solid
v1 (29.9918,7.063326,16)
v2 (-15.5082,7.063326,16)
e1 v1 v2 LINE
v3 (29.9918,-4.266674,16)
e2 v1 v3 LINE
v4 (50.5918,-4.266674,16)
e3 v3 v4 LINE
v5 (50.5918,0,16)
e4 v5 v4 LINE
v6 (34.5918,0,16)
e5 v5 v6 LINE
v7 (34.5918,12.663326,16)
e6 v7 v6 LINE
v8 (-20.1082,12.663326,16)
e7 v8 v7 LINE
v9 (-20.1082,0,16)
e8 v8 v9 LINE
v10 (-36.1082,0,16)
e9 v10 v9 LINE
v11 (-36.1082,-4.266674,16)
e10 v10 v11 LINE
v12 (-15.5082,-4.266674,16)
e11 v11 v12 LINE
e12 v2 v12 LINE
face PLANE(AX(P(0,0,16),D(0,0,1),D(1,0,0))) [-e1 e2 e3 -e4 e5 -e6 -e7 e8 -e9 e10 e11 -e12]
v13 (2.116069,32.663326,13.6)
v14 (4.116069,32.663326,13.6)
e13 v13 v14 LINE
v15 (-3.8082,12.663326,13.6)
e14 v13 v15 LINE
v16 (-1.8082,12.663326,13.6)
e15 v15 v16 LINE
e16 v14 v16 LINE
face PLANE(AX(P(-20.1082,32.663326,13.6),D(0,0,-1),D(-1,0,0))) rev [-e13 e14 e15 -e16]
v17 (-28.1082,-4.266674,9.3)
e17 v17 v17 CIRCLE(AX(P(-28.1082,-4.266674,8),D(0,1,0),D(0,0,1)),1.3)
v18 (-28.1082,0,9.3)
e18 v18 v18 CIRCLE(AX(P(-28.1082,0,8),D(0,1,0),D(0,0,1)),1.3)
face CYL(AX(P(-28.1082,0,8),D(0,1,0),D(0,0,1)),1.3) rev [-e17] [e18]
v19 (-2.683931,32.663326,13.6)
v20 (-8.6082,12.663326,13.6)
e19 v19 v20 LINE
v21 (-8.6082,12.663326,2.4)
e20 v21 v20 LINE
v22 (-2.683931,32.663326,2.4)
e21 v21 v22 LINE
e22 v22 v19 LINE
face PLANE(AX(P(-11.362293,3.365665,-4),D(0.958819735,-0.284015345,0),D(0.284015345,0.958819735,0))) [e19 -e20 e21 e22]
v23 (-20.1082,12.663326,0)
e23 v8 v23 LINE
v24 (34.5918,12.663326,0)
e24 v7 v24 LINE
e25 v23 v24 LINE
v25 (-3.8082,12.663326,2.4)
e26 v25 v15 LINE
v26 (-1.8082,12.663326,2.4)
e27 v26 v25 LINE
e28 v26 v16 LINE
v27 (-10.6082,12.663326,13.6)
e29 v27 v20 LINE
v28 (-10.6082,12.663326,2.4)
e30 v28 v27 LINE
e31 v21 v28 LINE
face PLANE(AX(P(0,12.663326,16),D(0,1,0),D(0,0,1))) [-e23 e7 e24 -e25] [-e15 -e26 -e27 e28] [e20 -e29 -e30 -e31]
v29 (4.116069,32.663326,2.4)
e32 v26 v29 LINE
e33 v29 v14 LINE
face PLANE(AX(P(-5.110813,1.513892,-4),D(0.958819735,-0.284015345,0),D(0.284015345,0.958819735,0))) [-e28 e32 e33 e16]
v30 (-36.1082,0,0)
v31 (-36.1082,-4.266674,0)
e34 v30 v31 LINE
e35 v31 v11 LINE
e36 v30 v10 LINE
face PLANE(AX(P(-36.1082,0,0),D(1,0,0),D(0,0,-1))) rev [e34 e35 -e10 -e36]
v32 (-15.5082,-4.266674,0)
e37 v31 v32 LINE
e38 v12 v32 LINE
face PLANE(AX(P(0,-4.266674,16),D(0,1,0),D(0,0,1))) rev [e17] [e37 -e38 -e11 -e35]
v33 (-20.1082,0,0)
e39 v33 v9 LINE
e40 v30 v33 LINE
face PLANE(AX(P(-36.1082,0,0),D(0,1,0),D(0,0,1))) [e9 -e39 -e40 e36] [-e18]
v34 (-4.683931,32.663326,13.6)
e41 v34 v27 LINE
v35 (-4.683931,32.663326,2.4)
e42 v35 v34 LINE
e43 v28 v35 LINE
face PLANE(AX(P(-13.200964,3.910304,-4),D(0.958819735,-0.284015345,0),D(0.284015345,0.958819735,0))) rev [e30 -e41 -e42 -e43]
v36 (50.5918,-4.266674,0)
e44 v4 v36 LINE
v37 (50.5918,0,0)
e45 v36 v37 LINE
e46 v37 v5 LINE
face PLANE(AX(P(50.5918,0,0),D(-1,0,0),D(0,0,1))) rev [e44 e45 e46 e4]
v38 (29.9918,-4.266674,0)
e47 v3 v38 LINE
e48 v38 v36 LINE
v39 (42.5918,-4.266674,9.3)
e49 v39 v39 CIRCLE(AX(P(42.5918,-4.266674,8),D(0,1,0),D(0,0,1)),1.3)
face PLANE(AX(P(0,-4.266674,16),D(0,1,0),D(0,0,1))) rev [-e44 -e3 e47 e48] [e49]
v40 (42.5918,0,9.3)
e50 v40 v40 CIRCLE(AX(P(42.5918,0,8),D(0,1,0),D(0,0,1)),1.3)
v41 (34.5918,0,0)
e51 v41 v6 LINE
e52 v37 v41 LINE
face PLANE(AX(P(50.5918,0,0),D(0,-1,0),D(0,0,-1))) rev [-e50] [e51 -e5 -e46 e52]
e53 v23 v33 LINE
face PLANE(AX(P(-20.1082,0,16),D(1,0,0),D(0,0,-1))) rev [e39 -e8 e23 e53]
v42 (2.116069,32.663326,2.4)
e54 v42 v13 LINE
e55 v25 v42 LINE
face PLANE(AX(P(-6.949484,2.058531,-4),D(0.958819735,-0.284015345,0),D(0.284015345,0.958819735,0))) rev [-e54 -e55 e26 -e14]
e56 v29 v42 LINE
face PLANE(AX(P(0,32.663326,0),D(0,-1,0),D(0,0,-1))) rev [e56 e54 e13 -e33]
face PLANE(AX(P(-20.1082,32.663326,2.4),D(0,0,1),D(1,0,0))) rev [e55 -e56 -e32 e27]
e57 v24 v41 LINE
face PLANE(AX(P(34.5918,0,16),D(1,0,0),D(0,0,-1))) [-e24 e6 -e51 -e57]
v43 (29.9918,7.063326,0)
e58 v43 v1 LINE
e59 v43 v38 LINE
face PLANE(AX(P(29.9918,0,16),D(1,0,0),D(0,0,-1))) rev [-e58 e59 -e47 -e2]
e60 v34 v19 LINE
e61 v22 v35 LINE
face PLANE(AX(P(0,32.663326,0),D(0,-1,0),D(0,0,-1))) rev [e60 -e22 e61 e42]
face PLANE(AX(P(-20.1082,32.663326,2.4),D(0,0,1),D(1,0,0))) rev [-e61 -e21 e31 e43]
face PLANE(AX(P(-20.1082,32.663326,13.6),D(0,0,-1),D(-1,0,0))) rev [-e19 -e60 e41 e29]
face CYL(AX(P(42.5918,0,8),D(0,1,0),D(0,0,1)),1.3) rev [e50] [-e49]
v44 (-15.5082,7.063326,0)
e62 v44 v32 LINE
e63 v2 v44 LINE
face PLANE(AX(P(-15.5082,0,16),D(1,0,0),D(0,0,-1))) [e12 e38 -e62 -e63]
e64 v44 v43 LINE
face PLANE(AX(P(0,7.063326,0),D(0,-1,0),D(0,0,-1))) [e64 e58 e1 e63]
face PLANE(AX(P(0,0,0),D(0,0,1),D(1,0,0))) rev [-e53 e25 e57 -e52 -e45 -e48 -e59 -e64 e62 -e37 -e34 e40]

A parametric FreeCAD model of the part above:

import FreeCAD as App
import Part
import Sketcher
Q = App.Units.Quantity

doc = App.newDocument("Part")
body = doc.addObject("PartDesign::Body", "Body")

# Sketch on XY plane
sketch1 = body.newObject("Sketcher::SketchObject", "Sketch")
sketch1.AttachmentSupport = (doc.getObject("XY_Plane"), [""])
sketch1.MapMode = "FlatFace"
sketch1.addGeometry(Part.LineSegment(App.Vector(34.6, 12.7, 0), App.Vector(-20.1, 12.7, 0)), False)
sketch1.addGeometry(Part.LineSegment(App.Vector(-20.1, 12.7, 0), App.Vector(-20.1, -4.3, 0)), False)
sketch1.addGeometry(Part.LineSegment(App.Vector(-20.1, -4.3, 0), App.Vector(-15.5, -4.3, 0)), False)
sketch1.addGeometry(Part.LineSegment(App.Vector(-15.5, -4.3, 0), App.Vector(-15.5, 8.1, 0)), False)
sketch1.addGeometry(Part.LineSegment(App.Vector(-15.5, 8.1, 0), App.Vector(30, 8.1, 0)), False)
sketch1.addGeometry(Part.LineSegment(App.Vector(30, 8.1, 0), App.Vector(30, -4.3, 0)), False)
sketch1.addGeometry(Part.LineSegment(App.Vector(30, -4.3, 0), App.Vector(34.6, -4.3, 0)), False)
sketch1.addGeometry(Part.LineSegment(App.Vector(34.6, -4.3, 0), App.Vector(34.6, 12.7, 0)), False)
sketch1.addConstraint(Sketcher.Constraint("Coincident", 0, 2, 1, 1))
sketch1.addConstraint(Sketcher.Constraint("Coincident", 1, 2, 2, 1))
sketch1.addConstraint(Sketcher.Constraint("Coincident", 2, 2, 3, 1))
sketch1.addConstraint(Sketcher.Constraint("Coincident", 3, 2, 4, 1))
sketch1.addConstraint(Sketcher.Constraint("Coincident", 4, 2, 5, 1))
sketch1.addConstraint(Sketcher.Constraint("Coincident", 5, 2, 6, 1))
sketch1.addConstraint(Sketcher.Constraint("Coincident", 6, 2, 7, 1))
sketch1.addConstraint(Sketcher.Constraint("Coincident", 7, 2, 0, 1))
sketch1.addConstraint(Sketcher.Constraint("Horizontal", 0))
sketch1.addConstraint(Sketcher.Constraint("Vertical", 1))
sketch1.addConstraint(Sketcher.Constraint("Horizontal", 2))
sketch1.addConstraint(Sketcher.Constraint("Vertical", 3))
sketch1.addConstraint(Sketcher.Constraint("Horizontal", 4))
sketch1.addConstraint(Sketcher.Constraint("Vertical", 5))
sketch1.addConstraint(Sketcher.Constraint("Horizontal", 6))
sketch1.addConstraint(Sketcher.Constraint("Vertical", 7))
sketch1.addConstraint(Sketcher.Constraint("Horizontal", 2, 2, 5, 2))
sketch1.addConstraint(Sketcher.Constraint("Equal", 2, 6))
sketch1.addConstraint(Sketcher.Constraint("DistanceX", 0, 2, 0, 1, 54.7))
sketch1.addConstraint(Sketcher.Constraint("DistanceX", 2, 1, 2, 2, 4.6))
sketch1.addConstraint(Sketcher.Constraint("DistanceY", 1, 2, 1, 1, 16.93))
sketch1.addConstraint(Sketcher.Constraint("DistanceY", 3, 1, 3, 2, 12.33))
sketch1.addConstraint(Sketcher.Constraint("DistanceX", 0, 2, -1, 1, 20.1082))
sketch1.addConstraint(Sketcher.Constraint("DistanceY", -1, 1, 0, 2, 12.663326))
pad1 = body.newObject("PartDesign::Pad", "Pad")
pad1.Profile = sketch1
pad1.Length = 16

# Sketch on YZ plane
sketch2 = body.newObject("Sketcher::SketchObject", "Sketch001")
sketch2.AttachmentSupport = (doc.getObject("YZ_Plane"), [""])
sketch2.MapMode = "FlatFace"
sketch2.AttachmentOffset = App.Placement(App.Vector(0, 0, -20.1082), App.Rotation())
sketch2.addGeometry(Part.LineSegment(App.Vector(0, 0, 0), App.Vector(-4.3, 0, 0)), False)
sketch2.addGeometry(Part.LineSegment(App.Vector(-4.3, 0, 0), App.Vector(-4.3, 16, 0)), False)
sketch2.addGeometry(Part.LineSegment(App.Vector(-4.3, 16, 0), App.Vector(0, 16, 0)), False)
sketch2.addGeometry(Part.LineSegment(App.Vector(0, 16, 0), App.Vector(0, 0, 0)), False)
sketch2.addConstraint(Sketcher.Constraint("Coincident", 0, 2, 1, 1))
sketch2.addConstraint(Sketcher.Constraint("Coincident", 1, 2, 2, 1))
sketch2.addConstraint(Sketcher.Constraint("Coincident", 2, 2, 3, 1))
sketch2.addConstraint(Sketcher.Constraint("Coincident", 3, 2, 0, 1))
sketch2.addConstraint(Sketcher.Constraint("Horizontal", 0))
sketch2.addConstraint(Sketcher.Constraint("Vertical", 1))
sketch2.addConstraint(Sketcher.Constraint("Horizontal", 2))
sketch2.addConstraint(Sketcher.Constraint("Vertical", 3))
sketch2.addConstraint(Sketcher.Constraint("Coincident", 3, 2, -1, 1))
sketch2.addConstraint(Sketcher.Constraint("DistanceY", 1, 1, 1, 2, 16.0))
sketch2.addConstraint(Sketcher.Constraint("DistanceX", 0, 2, 0, 1, 4.266674))
pad2 = body.newObject("PartDesign::Pad", "Pad001")
pad2.Profile = sketch2
pad2.Length = 16
pad2.Reversed = True

# Sketch on YZ plane
sketch3 = body.newObject("Sketcher::SketchObject", "Sketch002")
sketch3.AttachmentSupport = (doc.getObject("YZ_Plane"), [""])
sketch3.MapMode = "FlatFace"
sketch3.AttachmentOffset = App.Placement(App.Vector(0, 0, 34.5918), App.Rotation())
sketch3.addGeometry(Part.LineSegment(App.Vector(0, 16, 0), App.Vector(-4.3, 16, 0)), False)
sketch3.addGeometry(Part.LineSegment(App.Vector(-4.3, 16, 0), App.Vector(-4.3, 0, 0)), False)
sketch3.addGeometry(Part.LineSegment(App.Vector(-4.3, 0, 0), App.Vector(0, 0, 0)), False)
sketch3.addGeometry(Part.LineSegment(App.Vector(0, 0, 0), App.Vector(0, 16, 0)), False)
sketch3.addConstraint(Sketcher.Constraint("Coincident", 0, 2, 1, 1))
sketch3.addConstraint(Sketcher.Constraint("Coincident", 1, 2, 2, 1))
sketch3.addConstraint(Sketcher.Constraint("Coincident", 2, 2, 3, 1))
sketch3.addConstraint(Sketcher.Constraint("Coincident", 3, 2, 0, 1))
sketch3.addConstraint(Sketcher.Constraint("Horizontal", 0))
sketch3.addConstraint(Sketcher.Constraint("Vertical", 1))
sketch3.addConstraint(Sketcher.Constraint("Horizontal", 2))
sketch3.addConstraint(Sketcher.Constraint("Vertical", 3))
sketch3.addConstraint(Sketcher.Constraint("Coincident", 2, 2, -1, 1))
sketch3.addConstraint(Sketcher.Constraint("DistanceY", 1, 2, 1, 1, 16.0))
sketch3.addConstraint(Sketcher.Constraint("DistanceX", 0, 2, 0, 1, 4.266674))
pad3 = body.newObject("PartDesign::Pad", "Pad002")
pad3.Profile = sketch3
pad3.Length = 16

# Sketch on XZ plane
sketch4 = body.newObject("Sketcher::SketchObject", "Sketch003")
sketch4.AttachmentSupport = (doc.getObject("XZ_Plane"), [""])
sketch4.MapMode = "FlatFace"
sketch4.addGeometry(Part.Circle(App.Vector(42.6, 8, 0), App.Vector(0, 0, 1), 1.3), False)
sketch4.addConstraint(Sketcher.Constraint("Diameter", 0, 2.6))
sketch4.addConstraint(Sketcher.Constraint("DistanceY", -1, 1, 0, 3, 8.0))
sketch4.addConstraint(Sketcher.Constraint("DistanceX", -1, 1, 0, 3, 42.5918))
doc.recompute()
hole = body.newObject("PartDesign::Hole", "Hole")
hole.Profile = sketch4
hole.ThreadType = "None"
hole.Diameter = 2.6
hole.DepthType = "ThroughAll"
hole.Reversed = True

# Sketch on XZ plane
sketch5 = body.newObject("Sketcher::SketchObject", "Sketch004")
sketch5.AttachmentSupport = (doc.getObject("XZ_Plane"), [""])
sketch5.MapMode = "FlatFace"
sketch5.addGeometry(Part.Circle(App.Vector(-28.1, 8, 0), App.Vector(0, 0, 1), 1.3), False)
sketch5.addConstraint(Sketcher.Constraint("Diameter", 0, 2.6))
sketch5.addConstraint(Sketcher.Constraint("DistanceY", -1, 1, 0, 3, 8.0))
sketch5.addConstraint(Sketcher.Constraint("DistanceX", 0, 3, -1, 1, 28.1082))
doc.recompute()
hole2 = body.newObject("PartDesign::Hole", "Hole001")
hole2.Profile = sketch5
hole2.ThreadType = "None"
hole2.Diameter = 2.6
hole2.DepthType = "ThroughAll"
hole2.Reversed = True

# Sketch on XZ plane
sketch6 = body.newObject("Sketcher::SketchObject", "Sketch005")
sketch6.AttachmentSupport = (doc.getObject("XZ_Plane"), [""])
sketch6.MapMode = "FlatFace"
sketch6.AttachmentOffset = App.Placement(App.Vector(0, 0, -8.063326), App.Rotation())
sketch6.addGeometry(Part.LineSegment(App.Vector(-16, 16, 0), App.Vector(-16, 0, 0)), False)
sketch6.addGeometry(Part.LineSegment(App.Vector(-16, 0, 0), App.Vector(30, 0, 0)), False)
sketch6.addGeometry(Part.LineSegment(App.Vector(30, 0, 0), App.Vector(30, 16, 0)), False)
sketch6.addGeometry(Part.LineSegment(App.Vector(30, 16, 0), App.Vector(-16, 16, 0)), False)
sketch6.addConstraint(Sketcher.Constraint("Coincident", 0, 2, 1, 1))
sketch6.addConstraint(Sketcher.Constraint("Coincident", 1, 2, 2, 1))
sketch6.addConstraint(Sketcher.Constraint("Coincident", 2, 2, 3, 1))
sketch6.addConstraint(Sketcher.Constraint("Coincident", 3, 2, 0, 1))
sketch6.addConstraint(Sketcher.Constraint("Vertical", 0))
sketch6.addConstraint(Sketcher.Constraint("Horizontal", 1))
sketch6.addConstraint(Sketcher.Constraint("Vertical", 2))
sketch6.addConstraint(Sketcher.Constraint("Horizontal", 3))
sketch6.addConstraint(Sketcher.Constraint("PointOnObject", 0, 2, -1))
sketch6.addConstraint(Sketcher.Constraint("DistanceY", 0, 2, 0, 1, 16.0))
sketch6.addConstraint(Sketcher.Constraint("DistanceX", 1, 1, 1, 2, 45.5))
sketch6.addConstraint(Sketcher.Constraint("DistanceX", 0, 2, -1, 1, 15.5082))
pad4 = body.newObject("PartDesign::Pad", "Pad003")
pad4.Profile = sketch6
pad4.Length = 1

# Sketch on XZ plane
sketch7 = body.newObject("Sketcher::SketchObject", "Sketch006")
sketch7.AttachmentSupport = (doc.getObject("XZ_Plane"), [""])
sketch7.MapMode = "FlatFace"
sketch7.AttachmentOffset = App.Placement(App.Vector(0, 0, -12.663326), App.Rotation())
sketch7.addGeometry(Part.LineSegment(App.Vector(-20, 2, 0), App.Vector(-20, 14, 0)), False)
sketch7.addGeometry(Part.LineSegment(App.Vector(-20, 14, 0), App.Vector(8, 14, 0)), False)
sketch7.addGeometry(Part.LineSegment(App.Vector(8, 14, 0), App.Vector(8, 2, 0)), False)
sketch7.addGeometry(Part.LineSegment(App.Vector(8, 2, 0), App.Vector(-20, 2, 0)), False)
sketch7.addConstraint(Sketcher.Constraint("Coincident", 0, 2, 1, 1))
sketch7.addConstraint(Sketcher.Constraint("Coincident", 1, 2, 2, 1))
sketch7.addConstraint(Sketcher.Constraint("Coincident", 2, 2, 3, 1))
sketch7.addConstraint(Sketcher.Constraint("Coincident", 3, 2, 0, 1))
sketch7.addConstraint(Sketcher.Constraint("Vertical", 0))
sketch7.addConstraint(Sketcher.Constraint("Horizontal", 1))
sketch7.addConstraint(Sketcher.Constraint("Vertical", 2))
sketch7.addConstraint(Sketcher.Constraint("Horizontal", 3))
sketch7.addConstraint(Sketcher.Constraint("DistanceY", 0, 1, 0, 2, 11.2))
sketch7.addConstraint(Sketcher.Constraint("DistanceY", -1, 1, 0, 2, 13.6))
sketch7.addConstraint(Sketcher.Constraint("DistanceX", 1, 1, 1, 2, 28.538779))
sketch7.addConstraint(Sketcher.Constraint("DistanceX", 0, 2, -1, 1, 20.1082))
pad5 = body.newObject("PartDesign::Pad", "Pad004")
pad5.Profile = sketch7
pad5.Length = 20
pad5.Reversed = True

# Sketch on XY plane
sketch8 = body.newObject("Sketcher::SketchObject", "Sketch007")
sketch8.AttachmentSupport = (doc.getObject("XY_Plane"), [""])
sketch8.MapMode = "FlatFace"
sketch8.AttachmentOffset = App.Placement(App.Vector(0, 0, 16), App.Rotation())
sketch8.addGeometry(Part.LineSegment(App.Vector(-3.8, 12.7, 0), App.Vector(2.1, 32.7, 0)), False)
sketch8.addGeometry(Part.LineSegment(App.Vector(2.1, 32.7, 0), App.Vector(-2.7, 32.7, 0)), False)
sketch8.addGeometry(Part.LineSegment(App.Vector(-2.7, 32.7, 0), App.Vector(-8.6, 12.7, 0)), False)
sketch8.addGeometry(Part.LineSegment(App.Vector(-8.6, 12.7, 0), App.Vector(-3.8, 12.7, 0)), False)
sketch8.addGeometry(Part.LineSegment(App.Vector(-1.8, 12.7, 0), App.Vector(8.4, 12.7, 0)), False)
sketch8.addGeometry(Part.LineSegment(App.Vector(8.4, 12.7, 0), App.Vector(8.4, 32.7, 0)), False)
sketch8.addGeometry(Part.LineSegment(App.Vector(8.4, 32.7, 0), App.Vector(4.1, 32.7, 0)), False)
sketch8.addGeometry(Part.LineSegment(App.Vector(4.1, 32.7, 0), App.Vector(-1.8, 12.7, 0)), False)
sketch8.addGeometry(Part.LineSegment(App.Vector(-20.1, 12.7, 0), App.Vector(-10.6, 12.7, 0)), False)
sketch8.addGeometry(Part.LineSegment(App.Vector(-10.6, 12.7, 0), App.Vector(-4.7, 32.7, 0)), False)
sketch8.addGeometry(Part.LineSegment(App.Vector(-4.7, 32.7, 0), App.Vector(-20.1, 32.7, 0)), False)
sketch8.addGeometry(Part.LineSegment(App.Vector(-20.1, 32.7, 0), App.Vector(-20.1, 12.7, 0)), False)
sketch8.addConstraint(Sketcher.Constraint("Coincident", 0, 2, 1, 1))
sketch8.addConstraint(Sketcher.Constraint("Coincident", 1, 2, 2, 1))
sketch8.addConstraint(Sketcher.Constraint("Coincident", 2, 2, 3, 1))
sketch8.addConstraint(Sketcher.Constraint("Coincident", 3, 2, 0, 1))
sketch8.addConstraint(Sketcher.Constraint("Coincident", 4, 2, 5, 1))
sketch8.addConstraint(Sketcher.Constraint("Coincident", 5, 2, 6, 1))
sketch8.addConstraint(Sketcher.Constraint("Coincident", 6, 2, 7, 1))
sketch8.addConstraint(Sketcher.Constraint("Coincident", 7, 2, 4, 1))
sketch8.addConstraint(Sketcher.Constraint("Coincident", 8, 2, 9, 1))
sketch8.addConstraint(Sketcher.Constraint("Coincident", 9, 2, 10, 1))
sketch8.addConstraint(Sketcher.Constraint("Coincident", 10, 2, 11, 1))
sketch8.addConstraint(Sketcher.Constraint("Coincident", 11, 2, 8, 1))
sketch8.addConstraint(Sketcher.Constraint("Horizontal", 1))
sketch8.addConstraint(Sketcher.Constraint("Horizontal", 3))
sketch8.addConstraint(Sketcher.Constraint("Horizontal", 4))
sketch8.addConstraint(Sketcher.Constraint("Vertical", 5))
sketch8.addConstraint(Sketcher.Constraint("Horizontal", 6))
sketch8.addConstraint(Sketcher.Constraint("Horizontal", 8))
sketch8.addConstraint(Sketcher.Constraint("Horizontal", 10))
sketch8.addConstraint(Sketcher.Constraint("Vertical", 11))
sketch8.addConstraint(Sketcher.Constraint("Parallel", 0, 2))
sketch8.addConstraint(Sketcher.Constraint("Parallel", 2, 7))
sketch8.addConstraint(Sketcher.Constraint("Parallel", 7, 9))
sketch8.addConstraint(Sketcher.Constraint("Horizontal", 3, 2, 4, 2))
sketch8.addConstraint(Sketcher.Constraint("Horizontal", 1, 2, 5, 2))
sketch8.addConstraint(Sketcher.Constraint("Horizontal", 7, 2, 8, 2))
sketch8.addConstraint(Sketcher.Constraint("Horizontal", 6, 2, 9, 2))
sketch8.addConstraint(Sketcher.Constraint("DistanceY", 5, 1, 5, 2, 20.0))
sketch8.addConstraint(Sketcher.Constraint("DistanceX", 1, 2, 1, 1, 4.8))
sketch8.addConstraint(Sketcher.Constraint("DistanceX", 8, 1, 8, 2, 9.5))
sketch8.addConstraint(Sketcher.Constraint("Angle", 0, Q("73.5 deg")))
sketch8.addConstraint(Sketcher.Constraint("DistanceX", 0, 2, 6, 2, 2.0))
sketch8.addConstraint(Sketcher.Constraint("DistanceX", 8, 2, 2, 2, 2.0))
sketch8.addConstraint(Sketcher.Constraint("DistanceX", 4, 1, 4, 2, 10.238779))
sketch8.addConstraint(Sketcher.Constraint("DistanceX", 2, 2, -1, 1, 8.6082))
sketch8.addConstraint(Sketcher.Constraint("DistanceY", -1, 1, 0, 2, 32.663326))
pocket1 = body.newObject("PartDesign::Pocket", "Pocket")
pocket1.Profile = sketch8
pocket1.Length = 20

doc.recompute()
